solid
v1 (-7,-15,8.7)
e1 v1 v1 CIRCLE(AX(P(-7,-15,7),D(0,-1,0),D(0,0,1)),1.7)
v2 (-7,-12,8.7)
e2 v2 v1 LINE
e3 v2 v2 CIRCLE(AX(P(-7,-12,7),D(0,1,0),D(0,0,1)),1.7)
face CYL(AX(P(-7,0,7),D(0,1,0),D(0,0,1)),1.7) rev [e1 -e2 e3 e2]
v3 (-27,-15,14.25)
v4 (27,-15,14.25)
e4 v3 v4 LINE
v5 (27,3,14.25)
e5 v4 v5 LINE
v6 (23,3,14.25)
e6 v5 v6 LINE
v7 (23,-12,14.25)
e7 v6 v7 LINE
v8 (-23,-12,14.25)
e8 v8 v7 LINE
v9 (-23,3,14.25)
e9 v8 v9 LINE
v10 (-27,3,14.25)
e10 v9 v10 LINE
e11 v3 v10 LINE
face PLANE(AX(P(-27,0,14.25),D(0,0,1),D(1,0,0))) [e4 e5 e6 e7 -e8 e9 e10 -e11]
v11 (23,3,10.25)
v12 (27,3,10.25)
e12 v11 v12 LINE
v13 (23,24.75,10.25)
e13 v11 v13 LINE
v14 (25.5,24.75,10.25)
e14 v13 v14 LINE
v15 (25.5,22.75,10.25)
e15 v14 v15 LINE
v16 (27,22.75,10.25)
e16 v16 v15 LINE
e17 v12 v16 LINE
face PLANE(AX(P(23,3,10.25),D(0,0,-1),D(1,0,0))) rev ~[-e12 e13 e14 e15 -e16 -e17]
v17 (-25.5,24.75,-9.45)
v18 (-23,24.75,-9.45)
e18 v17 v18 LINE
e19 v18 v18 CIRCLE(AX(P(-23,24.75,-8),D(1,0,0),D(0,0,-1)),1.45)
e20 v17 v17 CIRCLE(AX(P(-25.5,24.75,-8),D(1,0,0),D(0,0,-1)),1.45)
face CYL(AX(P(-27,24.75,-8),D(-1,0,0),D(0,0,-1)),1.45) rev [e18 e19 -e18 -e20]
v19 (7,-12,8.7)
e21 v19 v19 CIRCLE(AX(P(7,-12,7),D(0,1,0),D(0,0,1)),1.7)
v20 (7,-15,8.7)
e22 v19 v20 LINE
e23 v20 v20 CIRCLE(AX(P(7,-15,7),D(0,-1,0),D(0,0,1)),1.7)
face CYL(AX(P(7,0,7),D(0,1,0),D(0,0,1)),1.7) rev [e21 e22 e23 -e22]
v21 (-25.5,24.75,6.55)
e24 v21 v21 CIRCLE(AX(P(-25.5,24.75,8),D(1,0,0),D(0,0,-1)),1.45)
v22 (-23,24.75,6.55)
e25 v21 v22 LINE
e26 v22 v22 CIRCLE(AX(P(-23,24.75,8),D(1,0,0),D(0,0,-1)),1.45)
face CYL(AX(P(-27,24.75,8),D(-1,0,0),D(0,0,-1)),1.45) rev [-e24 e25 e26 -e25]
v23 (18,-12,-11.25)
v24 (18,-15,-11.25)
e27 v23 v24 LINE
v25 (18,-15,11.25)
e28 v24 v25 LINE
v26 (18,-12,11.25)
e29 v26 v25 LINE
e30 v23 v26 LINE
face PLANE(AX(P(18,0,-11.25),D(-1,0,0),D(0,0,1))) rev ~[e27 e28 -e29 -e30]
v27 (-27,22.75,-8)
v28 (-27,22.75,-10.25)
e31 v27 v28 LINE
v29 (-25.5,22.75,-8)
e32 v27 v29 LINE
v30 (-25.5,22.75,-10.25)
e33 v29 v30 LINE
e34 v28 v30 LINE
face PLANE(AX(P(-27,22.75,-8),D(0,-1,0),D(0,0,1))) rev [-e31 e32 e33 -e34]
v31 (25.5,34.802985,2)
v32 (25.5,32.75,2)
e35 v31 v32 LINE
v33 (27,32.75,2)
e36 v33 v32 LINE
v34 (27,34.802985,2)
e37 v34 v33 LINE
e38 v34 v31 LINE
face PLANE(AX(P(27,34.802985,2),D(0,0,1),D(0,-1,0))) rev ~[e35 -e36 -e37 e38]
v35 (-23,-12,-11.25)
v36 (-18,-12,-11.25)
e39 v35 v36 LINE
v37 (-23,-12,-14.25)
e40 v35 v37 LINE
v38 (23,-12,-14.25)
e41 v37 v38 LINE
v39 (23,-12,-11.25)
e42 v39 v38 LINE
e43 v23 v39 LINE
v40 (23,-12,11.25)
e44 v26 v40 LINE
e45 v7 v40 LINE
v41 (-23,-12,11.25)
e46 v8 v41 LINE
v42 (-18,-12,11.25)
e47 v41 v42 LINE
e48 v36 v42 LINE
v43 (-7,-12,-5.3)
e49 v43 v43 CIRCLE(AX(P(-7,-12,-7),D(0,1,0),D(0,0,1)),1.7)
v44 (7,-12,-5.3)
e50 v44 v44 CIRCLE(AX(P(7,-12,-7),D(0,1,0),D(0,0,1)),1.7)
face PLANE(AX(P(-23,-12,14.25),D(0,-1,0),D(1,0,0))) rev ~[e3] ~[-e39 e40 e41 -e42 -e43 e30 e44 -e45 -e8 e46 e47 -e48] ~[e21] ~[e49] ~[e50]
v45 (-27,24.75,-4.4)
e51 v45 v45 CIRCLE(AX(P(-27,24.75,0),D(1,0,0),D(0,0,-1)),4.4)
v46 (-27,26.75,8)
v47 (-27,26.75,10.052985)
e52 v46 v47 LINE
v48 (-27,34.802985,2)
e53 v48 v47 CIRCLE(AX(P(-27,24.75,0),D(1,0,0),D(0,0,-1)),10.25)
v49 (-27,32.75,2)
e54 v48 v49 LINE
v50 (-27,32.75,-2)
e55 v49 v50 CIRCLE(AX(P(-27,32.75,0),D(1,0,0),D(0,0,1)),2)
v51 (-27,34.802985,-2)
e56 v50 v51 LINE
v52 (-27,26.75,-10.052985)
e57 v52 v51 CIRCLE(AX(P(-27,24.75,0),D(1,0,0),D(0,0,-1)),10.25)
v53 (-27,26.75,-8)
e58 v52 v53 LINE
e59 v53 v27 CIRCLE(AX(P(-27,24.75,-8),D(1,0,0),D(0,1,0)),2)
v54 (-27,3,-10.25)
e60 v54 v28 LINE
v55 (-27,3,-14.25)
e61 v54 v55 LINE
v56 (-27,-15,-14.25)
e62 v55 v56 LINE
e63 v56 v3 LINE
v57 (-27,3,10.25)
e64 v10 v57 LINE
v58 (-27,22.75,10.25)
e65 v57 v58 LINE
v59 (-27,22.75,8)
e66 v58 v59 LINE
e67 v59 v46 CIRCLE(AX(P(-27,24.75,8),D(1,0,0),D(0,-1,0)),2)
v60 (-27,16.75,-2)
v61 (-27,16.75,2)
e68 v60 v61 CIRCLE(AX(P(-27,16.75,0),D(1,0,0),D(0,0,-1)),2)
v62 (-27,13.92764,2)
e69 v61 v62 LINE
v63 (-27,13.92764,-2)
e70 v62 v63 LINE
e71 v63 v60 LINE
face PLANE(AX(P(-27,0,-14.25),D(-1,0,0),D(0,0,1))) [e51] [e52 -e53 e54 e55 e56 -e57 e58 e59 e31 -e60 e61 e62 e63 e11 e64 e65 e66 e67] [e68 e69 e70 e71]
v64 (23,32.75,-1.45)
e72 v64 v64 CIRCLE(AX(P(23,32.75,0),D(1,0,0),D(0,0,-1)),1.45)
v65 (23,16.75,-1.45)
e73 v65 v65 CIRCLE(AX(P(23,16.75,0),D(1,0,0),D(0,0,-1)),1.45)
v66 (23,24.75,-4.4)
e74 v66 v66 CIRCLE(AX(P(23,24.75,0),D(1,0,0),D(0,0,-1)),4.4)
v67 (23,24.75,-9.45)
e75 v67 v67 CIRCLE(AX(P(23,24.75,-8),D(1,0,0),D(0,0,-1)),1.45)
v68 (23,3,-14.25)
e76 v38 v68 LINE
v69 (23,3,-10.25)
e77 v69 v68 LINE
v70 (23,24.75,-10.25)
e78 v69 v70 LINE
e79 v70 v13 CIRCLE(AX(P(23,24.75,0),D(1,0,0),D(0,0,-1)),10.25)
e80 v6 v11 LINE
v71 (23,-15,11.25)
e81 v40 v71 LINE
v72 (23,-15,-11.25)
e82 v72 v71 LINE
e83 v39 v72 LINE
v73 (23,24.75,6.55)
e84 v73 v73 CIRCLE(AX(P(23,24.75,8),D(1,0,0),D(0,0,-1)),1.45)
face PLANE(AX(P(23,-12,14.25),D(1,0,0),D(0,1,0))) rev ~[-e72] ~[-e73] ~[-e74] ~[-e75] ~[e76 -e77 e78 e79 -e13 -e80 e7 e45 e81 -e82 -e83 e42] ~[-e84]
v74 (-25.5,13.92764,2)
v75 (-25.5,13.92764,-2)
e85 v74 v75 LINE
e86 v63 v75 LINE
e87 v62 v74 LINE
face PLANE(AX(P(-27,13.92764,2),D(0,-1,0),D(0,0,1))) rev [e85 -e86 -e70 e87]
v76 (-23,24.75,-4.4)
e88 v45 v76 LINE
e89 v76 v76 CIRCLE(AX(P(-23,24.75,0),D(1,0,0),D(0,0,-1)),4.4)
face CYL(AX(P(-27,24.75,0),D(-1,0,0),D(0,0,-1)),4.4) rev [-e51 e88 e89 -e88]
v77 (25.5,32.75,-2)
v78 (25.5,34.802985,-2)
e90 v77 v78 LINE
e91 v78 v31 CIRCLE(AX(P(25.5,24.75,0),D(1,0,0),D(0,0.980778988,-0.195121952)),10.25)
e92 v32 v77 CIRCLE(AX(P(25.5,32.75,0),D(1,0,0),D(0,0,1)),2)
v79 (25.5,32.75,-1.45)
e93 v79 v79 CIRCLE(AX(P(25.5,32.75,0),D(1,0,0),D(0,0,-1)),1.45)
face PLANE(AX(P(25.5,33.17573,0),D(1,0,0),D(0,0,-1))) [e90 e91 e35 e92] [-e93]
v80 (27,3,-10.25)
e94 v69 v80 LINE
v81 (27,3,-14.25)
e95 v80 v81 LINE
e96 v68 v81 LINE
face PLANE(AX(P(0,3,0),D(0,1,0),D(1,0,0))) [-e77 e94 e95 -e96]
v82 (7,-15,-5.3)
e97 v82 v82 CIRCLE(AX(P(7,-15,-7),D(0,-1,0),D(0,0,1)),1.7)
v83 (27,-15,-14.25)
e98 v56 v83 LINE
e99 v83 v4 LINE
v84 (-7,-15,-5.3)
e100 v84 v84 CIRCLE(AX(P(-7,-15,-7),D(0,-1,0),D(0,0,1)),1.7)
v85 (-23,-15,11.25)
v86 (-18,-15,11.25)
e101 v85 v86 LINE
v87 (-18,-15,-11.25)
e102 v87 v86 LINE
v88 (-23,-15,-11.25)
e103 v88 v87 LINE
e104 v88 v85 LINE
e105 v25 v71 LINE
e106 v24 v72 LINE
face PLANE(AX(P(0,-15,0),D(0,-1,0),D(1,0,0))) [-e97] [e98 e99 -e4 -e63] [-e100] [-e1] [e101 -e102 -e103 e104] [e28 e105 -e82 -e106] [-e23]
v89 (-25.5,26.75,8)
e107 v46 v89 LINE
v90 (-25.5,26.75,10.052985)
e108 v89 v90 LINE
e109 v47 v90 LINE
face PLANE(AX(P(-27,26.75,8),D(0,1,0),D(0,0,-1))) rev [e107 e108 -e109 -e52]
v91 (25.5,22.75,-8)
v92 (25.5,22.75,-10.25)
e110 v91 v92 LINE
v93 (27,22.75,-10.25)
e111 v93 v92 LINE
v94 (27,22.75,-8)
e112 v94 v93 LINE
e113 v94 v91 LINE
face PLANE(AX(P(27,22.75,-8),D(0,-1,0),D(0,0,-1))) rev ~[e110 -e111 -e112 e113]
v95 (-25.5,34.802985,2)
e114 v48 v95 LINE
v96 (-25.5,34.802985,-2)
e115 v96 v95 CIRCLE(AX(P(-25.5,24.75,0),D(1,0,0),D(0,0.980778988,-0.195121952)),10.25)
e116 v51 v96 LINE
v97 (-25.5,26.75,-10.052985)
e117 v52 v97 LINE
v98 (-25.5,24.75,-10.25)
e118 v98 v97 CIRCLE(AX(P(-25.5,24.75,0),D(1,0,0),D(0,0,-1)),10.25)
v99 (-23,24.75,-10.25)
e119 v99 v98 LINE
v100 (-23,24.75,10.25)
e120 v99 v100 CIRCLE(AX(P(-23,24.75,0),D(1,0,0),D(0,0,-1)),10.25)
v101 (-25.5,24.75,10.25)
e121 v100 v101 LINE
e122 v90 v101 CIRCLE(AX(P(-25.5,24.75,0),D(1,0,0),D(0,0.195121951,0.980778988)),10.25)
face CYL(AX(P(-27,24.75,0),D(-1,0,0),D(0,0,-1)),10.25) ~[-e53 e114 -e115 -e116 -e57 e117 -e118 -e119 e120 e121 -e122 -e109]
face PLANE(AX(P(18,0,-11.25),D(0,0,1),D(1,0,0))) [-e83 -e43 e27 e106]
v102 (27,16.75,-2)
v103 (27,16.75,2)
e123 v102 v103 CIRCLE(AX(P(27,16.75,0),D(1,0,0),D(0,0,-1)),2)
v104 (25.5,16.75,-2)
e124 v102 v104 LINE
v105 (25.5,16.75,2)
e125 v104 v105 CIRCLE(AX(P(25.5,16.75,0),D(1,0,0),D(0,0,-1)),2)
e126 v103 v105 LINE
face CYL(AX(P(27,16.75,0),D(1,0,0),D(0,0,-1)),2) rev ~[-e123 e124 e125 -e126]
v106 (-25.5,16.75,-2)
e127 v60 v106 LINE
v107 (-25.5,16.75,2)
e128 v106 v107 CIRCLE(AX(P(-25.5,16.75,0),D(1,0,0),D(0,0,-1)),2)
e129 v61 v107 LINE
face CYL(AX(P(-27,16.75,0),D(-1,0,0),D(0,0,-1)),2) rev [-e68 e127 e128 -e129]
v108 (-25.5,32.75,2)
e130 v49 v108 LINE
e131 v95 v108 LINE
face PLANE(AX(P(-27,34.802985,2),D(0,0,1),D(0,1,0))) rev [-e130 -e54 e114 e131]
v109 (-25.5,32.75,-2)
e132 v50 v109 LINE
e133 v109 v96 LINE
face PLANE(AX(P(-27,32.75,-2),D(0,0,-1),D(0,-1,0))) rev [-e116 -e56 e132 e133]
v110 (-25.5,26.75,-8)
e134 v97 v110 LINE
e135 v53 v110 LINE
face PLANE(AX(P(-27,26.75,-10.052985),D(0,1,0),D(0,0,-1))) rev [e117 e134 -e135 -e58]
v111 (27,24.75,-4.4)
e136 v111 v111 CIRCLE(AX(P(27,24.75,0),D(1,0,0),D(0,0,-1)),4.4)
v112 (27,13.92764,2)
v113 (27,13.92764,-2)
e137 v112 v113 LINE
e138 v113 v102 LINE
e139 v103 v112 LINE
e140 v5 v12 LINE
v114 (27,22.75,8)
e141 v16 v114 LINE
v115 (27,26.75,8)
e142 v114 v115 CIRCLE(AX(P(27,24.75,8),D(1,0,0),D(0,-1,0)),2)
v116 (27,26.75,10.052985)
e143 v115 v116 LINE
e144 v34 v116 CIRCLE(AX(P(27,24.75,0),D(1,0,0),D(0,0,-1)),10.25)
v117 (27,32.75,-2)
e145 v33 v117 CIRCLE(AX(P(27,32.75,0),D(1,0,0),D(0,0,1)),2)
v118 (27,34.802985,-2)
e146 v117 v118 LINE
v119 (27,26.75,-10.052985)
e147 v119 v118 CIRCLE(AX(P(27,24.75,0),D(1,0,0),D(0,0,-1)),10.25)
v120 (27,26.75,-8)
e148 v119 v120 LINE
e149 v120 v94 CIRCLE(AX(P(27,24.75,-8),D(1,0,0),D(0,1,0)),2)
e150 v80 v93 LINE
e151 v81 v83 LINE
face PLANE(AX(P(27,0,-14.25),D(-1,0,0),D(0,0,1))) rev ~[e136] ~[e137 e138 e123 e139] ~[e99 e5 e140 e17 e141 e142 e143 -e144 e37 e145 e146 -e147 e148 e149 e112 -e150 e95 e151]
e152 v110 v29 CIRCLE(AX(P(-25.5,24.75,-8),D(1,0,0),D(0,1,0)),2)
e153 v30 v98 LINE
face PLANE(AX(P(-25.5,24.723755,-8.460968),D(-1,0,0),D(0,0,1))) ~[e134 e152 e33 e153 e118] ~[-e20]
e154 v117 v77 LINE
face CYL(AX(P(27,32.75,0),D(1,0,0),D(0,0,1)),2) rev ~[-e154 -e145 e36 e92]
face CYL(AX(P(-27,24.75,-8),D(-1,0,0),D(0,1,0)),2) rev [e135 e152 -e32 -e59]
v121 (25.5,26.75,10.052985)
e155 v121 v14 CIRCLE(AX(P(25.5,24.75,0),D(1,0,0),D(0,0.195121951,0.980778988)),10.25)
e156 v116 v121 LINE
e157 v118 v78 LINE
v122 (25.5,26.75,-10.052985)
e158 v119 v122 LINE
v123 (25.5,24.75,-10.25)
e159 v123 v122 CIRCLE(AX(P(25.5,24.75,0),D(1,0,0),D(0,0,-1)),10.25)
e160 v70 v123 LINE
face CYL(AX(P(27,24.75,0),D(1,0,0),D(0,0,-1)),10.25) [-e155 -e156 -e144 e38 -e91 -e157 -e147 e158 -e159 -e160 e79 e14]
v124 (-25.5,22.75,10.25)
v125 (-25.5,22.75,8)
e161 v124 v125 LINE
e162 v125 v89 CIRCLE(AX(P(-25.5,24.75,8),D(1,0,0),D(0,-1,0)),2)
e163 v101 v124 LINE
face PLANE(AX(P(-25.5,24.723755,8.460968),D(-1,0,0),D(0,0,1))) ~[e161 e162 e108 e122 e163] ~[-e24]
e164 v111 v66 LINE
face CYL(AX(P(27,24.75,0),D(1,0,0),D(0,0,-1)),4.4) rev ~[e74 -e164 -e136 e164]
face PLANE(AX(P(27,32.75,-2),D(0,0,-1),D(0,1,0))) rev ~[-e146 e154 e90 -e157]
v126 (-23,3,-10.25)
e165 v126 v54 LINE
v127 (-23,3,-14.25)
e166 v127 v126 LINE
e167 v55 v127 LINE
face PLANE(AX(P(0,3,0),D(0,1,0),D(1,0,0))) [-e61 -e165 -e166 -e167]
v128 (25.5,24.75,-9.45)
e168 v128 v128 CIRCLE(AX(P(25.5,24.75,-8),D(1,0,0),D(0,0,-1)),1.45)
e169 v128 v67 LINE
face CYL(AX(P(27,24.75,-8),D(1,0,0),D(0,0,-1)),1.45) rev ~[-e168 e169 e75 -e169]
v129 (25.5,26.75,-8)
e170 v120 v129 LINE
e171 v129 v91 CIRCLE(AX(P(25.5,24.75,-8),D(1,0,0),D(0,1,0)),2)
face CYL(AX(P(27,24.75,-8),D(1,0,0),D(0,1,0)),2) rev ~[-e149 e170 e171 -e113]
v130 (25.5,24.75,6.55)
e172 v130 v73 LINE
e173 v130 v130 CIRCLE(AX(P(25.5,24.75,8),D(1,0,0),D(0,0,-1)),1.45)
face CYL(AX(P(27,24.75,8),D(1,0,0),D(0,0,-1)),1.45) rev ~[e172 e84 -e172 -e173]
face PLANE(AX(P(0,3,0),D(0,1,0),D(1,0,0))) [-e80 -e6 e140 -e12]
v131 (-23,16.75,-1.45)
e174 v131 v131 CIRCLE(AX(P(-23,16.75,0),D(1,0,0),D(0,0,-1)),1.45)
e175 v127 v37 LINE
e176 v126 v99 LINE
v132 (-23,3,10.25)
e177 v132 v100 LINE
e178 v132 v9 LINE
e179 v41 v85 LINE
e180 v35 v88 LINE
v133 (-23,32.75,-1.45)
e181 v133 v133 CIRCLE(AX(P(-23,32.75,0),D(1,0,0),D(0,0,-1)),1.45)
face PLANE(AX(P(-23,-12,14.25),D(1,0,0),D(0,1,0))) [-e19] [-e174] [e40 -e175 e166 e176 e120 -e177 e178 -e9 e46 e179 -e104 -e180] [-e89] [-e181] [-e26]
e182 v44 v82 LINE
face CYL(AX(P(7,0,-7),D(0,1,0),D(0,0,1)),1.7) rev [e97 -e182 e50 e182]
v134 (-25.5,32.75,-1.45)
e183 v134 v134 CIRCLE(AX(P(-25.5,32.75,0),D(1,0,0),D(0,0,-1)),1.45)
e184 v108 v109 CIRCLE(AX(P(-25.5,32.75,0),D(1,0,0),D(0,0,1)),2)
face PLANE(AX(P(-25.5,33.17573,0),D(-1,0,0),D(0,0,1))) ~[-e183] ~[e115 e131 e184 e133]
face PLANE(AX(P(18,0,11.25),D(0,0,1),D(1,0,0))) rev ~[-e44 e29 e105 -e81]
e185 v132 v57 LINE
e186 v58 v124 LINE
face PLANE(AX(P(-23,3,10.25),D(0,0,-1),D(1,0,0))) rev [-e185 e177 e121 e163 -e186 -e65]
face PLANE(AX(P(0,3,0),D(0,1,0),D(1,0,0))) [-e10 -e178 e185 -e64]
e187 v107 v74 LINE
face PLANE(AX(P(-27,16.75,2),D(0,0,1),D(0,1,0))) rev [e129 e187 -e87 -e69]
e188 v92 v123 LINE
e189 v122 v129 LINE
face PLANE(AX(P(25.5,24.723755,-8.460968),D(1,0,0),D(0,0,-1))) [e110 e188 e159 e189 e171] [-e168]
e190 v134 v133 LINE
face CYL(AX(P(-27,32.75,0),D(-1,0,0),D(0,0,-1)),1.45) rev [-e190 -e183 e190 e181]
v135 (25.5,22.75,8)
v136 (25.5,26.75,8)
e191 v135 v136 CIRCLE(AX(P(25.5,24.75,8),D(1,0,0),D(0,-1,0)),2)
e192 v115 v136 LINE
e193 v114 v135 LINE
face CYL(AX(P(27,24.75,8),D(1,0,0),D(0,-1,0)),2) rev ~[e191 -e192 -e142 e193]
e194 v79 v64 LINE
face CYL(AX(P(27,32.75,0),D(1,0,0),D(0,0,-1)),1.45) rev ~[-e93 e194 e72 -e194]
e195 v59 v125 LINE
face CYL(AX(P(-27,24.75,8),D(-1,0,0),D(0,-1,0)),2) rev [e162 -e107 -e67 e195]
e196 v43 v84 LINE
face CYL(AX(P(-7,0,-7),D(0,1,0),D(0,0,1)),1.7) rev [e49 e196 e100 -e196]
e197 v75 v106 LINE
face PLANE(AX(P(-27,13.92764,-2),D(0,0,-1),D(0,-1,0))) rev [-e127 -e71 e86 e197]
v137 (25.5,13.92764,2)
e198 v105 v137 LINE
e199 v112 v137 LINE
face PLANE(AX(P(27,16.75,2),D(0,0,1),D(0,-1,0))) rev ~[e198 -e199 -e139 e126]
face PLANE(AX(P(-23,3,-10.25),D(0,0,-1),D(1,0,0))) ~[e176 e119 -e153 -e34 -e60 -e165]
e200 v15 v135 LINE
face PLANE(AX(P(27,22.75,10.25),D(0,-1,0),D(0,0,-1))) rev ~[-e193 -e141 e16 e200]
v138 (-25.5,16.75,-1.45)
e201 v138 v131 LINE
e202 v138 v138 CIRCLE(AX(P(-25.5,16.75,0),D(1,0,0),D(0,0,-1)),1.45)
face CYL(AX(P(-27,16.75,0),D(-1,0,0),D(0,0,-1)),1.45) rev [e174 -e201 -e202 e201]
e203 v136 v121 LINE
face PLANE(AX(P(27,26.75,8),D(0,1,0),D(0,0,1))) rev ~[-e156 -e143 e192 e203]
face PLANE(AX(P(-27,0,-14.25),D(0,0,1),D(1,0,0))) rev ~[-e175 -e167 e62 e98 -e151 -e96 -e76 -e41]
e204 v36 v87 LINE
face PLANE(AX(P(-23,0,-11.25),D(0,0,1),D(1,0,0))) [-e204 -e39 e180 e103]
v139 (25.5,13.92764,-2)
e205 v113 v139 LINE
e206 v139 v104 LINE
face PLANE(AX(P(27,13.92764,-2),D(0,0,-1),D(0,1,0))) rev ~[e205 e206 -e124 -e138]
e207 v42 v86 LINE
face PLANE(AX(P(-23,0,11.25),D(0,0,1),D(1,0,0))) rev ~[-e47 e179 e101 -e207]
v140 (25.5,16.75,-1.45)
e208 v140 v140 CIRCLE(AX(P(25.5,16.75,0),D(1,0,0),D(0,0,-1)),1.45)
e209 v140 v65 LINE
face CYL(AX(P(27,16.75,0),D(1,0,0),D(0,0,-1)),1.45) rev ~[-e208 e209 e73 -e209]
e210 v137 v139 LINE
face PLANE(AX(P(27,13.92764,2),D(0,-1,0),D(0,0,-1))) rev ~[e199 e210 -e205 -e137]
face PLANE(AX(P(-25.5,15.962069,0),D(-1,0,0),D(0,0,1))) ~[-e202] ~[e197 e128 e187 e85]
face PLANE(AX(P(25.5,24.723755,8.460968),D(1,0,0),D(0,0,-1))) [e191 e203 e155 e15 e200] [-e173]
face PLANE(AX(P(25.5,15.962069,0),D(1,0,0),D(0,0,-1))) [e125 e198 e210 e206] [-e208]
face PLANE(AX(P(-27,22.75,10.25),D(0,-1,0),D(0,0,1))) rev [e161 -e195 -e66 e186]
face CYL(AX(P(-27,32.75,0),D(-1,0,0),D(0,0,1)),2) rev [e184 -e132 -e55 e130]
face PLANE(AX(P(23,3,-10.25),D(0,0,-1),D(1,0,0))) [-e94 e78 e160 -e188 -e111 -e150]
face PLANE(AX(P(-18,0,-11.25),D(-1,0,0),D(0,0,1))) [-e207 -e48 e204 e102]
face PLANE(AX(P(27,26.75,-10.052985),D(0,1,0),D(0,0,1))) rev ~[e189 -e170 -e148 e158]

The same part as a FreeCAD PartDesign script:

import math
import FreeCAD as App
import Part
import Sketcher

V = App.Vector
Q = App.Units.Quantity

doc = App.newDocument("Part")
body = doc.addObject("PartDesign::Body", "Body")

sketch1 = body.newObject("Sketcher::SketchObject", "Sketch")
sketch1.AttachmentSupport = (doc.getObject("XZ_Plane"), [""])
sketch1.MapMode = "FlatFace"
sketch1.addGeometry([
    Part.LineSegment(V(-27, -14.2, 0), V(-27, 14.2, 0)),
    Part.LineSegment(V(-27, 14.2, 0), V(27, 14.2, 0)),
    Part.LineSegment(V(27, 14.2, 0), V(27, -14.2, 0)),
    Part.LineSegment(V(27, -14.2, 0), V(-27, -14.2, 0)),
    Part.Circle(V(-9, 8.2, 0), V(0, 0, 1), 1.7),
    Part.Circle(V(9, 8.2, 0), V(0, 0, 1), 1.7),
    Part.LineSegment(V(-18, 11.2, 0), V(-23, 11.2, 0)),
    Part.LineSegment(V(-23, 11.2, 0), V(-23, -11.2, 0)),
    Part.LineSegment(V(-23, -11.2, 0), V(-18, -11.2, 0)),
    Part.LineSegment(V(-18, -11.2, 0), V(-18, 11.2, 0)),
    Part.Circle(V(-9, -8.2, 0), V(0, 0, 1), 1.7),
    Part.Circle(V(0, 0, 0), V(0, 0, 1), 7.5),
    Part.LineSegment(V(23, 11.2, 0), V(18, 11.2, 0)),
    Part.LineSegment(V(18, 11.2, 0), V(18, -11.2, 0)),
    Part.LineSegment(V(18, -11.2, 0), V(23, -11.2, 0)),
    Part.LineSegment(V(23, -11.2, 0), V(23, 11.2, 0)),
    Part.Circle(V(9, -8.2, 0), V(0, 0, 1), 1.7),
], False)
sketch1.addConstraint([
    Sketcher.Constraint("Coincident", 0, 2, 1, 1),
    Sketcher.Constraint("Coincident", 1, 2, 2, 1),
    Sketcher.Constraint("Coincident", 2, 2, 3, 1),
    Sketcher.Constraint("Coincident", 3, 2, 0, 1),
    Sketcher.Constraint("Coincident", 6, 2, 7, 1),
    Sketcher.Constraint("Coincident", 7, 2, 8, 1),
    Sketcher.Constraint("Coincident", 8, 2, 9, 1),
    Sketcher.Constraint("Coincident", 9, 2, 6, 1),
    Sketcher.Constraint("Coincident", 12, 2, 13, 1),
    Sketcher.Constraint("Coincident", 13, 2, 14, 1),
    Sketcher.Constraint("Coincident", 14, 2, 15, 1),
    Sketcher.Constraint("Coincident", 15, 2, 12, 1),
    Sketcher.Constraint("Vertical", 0),
    Sketcher.Constraint("Horizontal", 1),
    Sketcher.Constraint("Vertical", 2),
    Sketcher.Constraint("Horizontal", 3),
    Sketcher.Constraint("Horizontal", 6),
    Sketcher.Constraint("Vertical", 7),
    Sketcher.Constraint("Horizontal", 8),
    Sketcher.Constraint("Vertical", 9),
    Sketcher.Constraint("Horizontal", 12),
    Sketcher.Constraint("Vertical", 13),
    Sketcher.Constraint("Horizontal", 14),
    Sketcher.Constraint("Vertical", 15),
    Sketcher.Constraint("Coincident", 11, 3, -1, 1),
    Sketcher.Constraint("Equal", 4, 5),
    Sketcher.Constraint("Equal", 5, 10),
    Sketcher.Constraint("Equal", 10, 16),
    Sketcher.Constraint("Symmetric", 5, 3, 10, 3, -1, 1),
    Sketcher.Constraint("Symmetric", 4, 3, 16, 3, -1, 1),
    Sketcher.Constraint("Symmetric", 0, 2, 2, 2, -1, 1),
    Sketcher.Constraint("Symmetric", 8, 2, 12, 2, -1, 1),
    Sketcher.Constraint("Symmetric", 6, 2, 14, 2, -1, 1),
    Sketcher.Constraint("Symmetric", 4, 3, 5, 3, -2),
    Sketcher.Constraint("Horizontal", 9, 2, 12, 2),
    Sketcher.Constraint("Diameter", 11, Q("15 mm")),
    Sketcher.Constraint("Diameter", 4, Q("3.4 mm")),
    Sketcher.Constraint("DistanceX", 1, 1, 1, 2, Q("54 mm")),
    Sketcher.Constraint("DistanceX", 6, 2, 6, 1, Q("5 mm")),
    Sketcher.Constraint("DistanceY", 0, 1, 0, 2, Q("28.5 mm")),
    Sketcher.Constraint("DistanceY", 7, 2, 7, 1, Q("22.5 mm")),
    Sketcher.Constraint("DistanceX", 4, 3, -1, 1, Q("9 mm")),
    Sketcher.Constraint("DistanceX", 6, 2, -1, 1, Q("23 mm")),
    Sketcher.Constraint("DistanceY", 4, 3, 0, 2, Q("6 mm")),
])
pad1 = body.newObject("PartDesign::Pad", "Pad")
pad1.Profile = sketch1
pad1.Length = 3
pad1.Reversed = True

sketch2 = body.newObject("Sketcher::SketchObject", "Sketch001")
sketch2.AttachmentSupport = (doc.getObject("XZ_Plane"), [""])
sketch2.MapMode = "FlatFace"
sketch2.AttachmentOffset = App.Placement(V(0, 0, -3), App.Rotation())
sketch2.addGeometry([
    Part.LineSegment(V(23, -10.2, 0), V(23, 10.2, 0)),
    Part.LineSegment(V(23, 10.2, 0), V(27, 10.2, 0)),
    Part.LineSegment(V(27, 10.2, 0), V(27, -10.2, 0)),
    Part.LineSegment(V(27, -10.2, 0), V(23, -10.2, 0)),
], False)
sketch2.addConstraint([
    Sketcher.Constraint("Coincident", 0, 2, 1, 1),
    Sketcher.Constraint("Coincident", 1, 2, 2, 1),
    Sketcher.Constraint("Coincident", 2, 2, 3, 1),
    Sketcher.Constraint("Coincident", 3, 2, 0, 1),
    Sketcher.Constraint("Vertical", 0),
    Sketcher.Constraint("Horizontal", 1),
    Sketcher.Constraint("Vertical", 2),
    Sketcher.Constraint("Horizontal", 3),
    Sketcher.Constraint("DistanceX", 1, 1, 1, 2, Q("4 mm")),
    Sketcher.Constraint("DistanceY", 0, 1, 0, 2, Q("20.5 mm")),
    Sketcher.Constraint("DistanceX", -1, 1, 0, 2, Q("23 mm")),
    Sketcher.Constraint("DistanceY", -1, 1, 0, 2, Q("10.25 mm")),
])
pad2 = body.newObject("PartDesign::Pad", "Pad001")
pad2.Profile = sketch2
pad2.Length = 21.75
pad2.Reversed = True

sketch3 = body.newObject("Sketcher::SketchObject", "Sketch002")
sketch3.AttachmentSupport = (doc.getObject("YZ_Plane"), [""])
sketch3.MapMode = "FlatFace"
sketch3.AttachmentOffset = App.Placement(V(0, 0, 27), App.Rotation())
sketch3.addGeometry(Part.Circle(V(25, 0, 0), V(0, 0, 1), 10), False)
sketch3.addConstraint([
    Sketcher.Constraint("PointOnObject", 0, 3, -1),
    Sketcher.Constraint("Diameter", 0, Q("20.5 mm")),
    Sketcher.Constraint("DistanceX", -1, 1, 0, 3, Q("24.75 mm")),
])
pad3 = body.newObject("PartDesign::Pad", "Pad002")
pad3.Profile = sketch3
pad3.Length = 4
pad3.Reversed = True
doc.recompute()

mirrored = body.newObject("PartDesign::Mirrored", "Mirrored")
mirrored.Originals = [pad2, pad3]
mirrored.MirrorPlane = (doc.getObject("YZ_Plane"), [""])
body.Tip = mirrored

sketch4 = body.newObject("Sketcher::SketchObject", "Sketch003")
sketch4.AttachmentSupport = (doc.getObject("YZ_Plane"), [""])
sketch4.MapMode = "FlatFace"
sketch4.AttachmentOffset = App.Placement(V(0, 0, 27), App.Rotation())
sketch4.addGeometry([
    Part.Circle(V(24.8, 0, 0), V(0, 0, 1), 4.4),
    Part.Circle(V(32.8, 0, 0), V(0, 0, 1), 1.4),
    Part.Circle(V(24.8, -8, 0), V(0, 0, 1), 1.4),
    Part.Circle(V(16.8, 0, 0), V(0, 0, 1), 1.4),
    Part.Circle(V(24.8, 8, 0), V(0, 0, 1), 1.4),
], False)
sketch4.addConstraint([
    Sketcher.Constraint("Equal", 1, 2),
    Sketcher.Constraint("Equal", 2, 3),
    Sketcher.Constraint("Equal", 3, 4),
    Sketcher.Constraint("Symmetric", 2, 3, 4, 3, -1),
    Sketcher.Constraint("PointOnObject", 0, 3, -1),
    Sketcher.Constraint("PointOnObject", 1, 3, -1),
    Sketcher.Constraint("PointOnObject", 3, 3, -1),
    Sketcher.Constraint("Vertical", 0, 3, 2, 3),
    Sketcher.Constraint("Diameter", 0, Q("8.8 mm")),
    Sketcher.Constraint("Diameter", 1, Q("2.9 mm")),
    Sketcher.Constraint("DistanceY", 2, 3, -1, 1, Q("8 mm")),
    Sketcher.Constraint("DistanceX", 0, 3, 1, 3, Q("8 mm")),
    Sketcher.Constraint("DistanceX", 3, 3, 0, 3, Q("8 mm")),
    Sketcher.Constraint("DistanceX", -1, 1, 0, 3, Q("24.75 mm")),
])
pocket1 = body.newObject("PartDesign::Pocket", "Pocket")
pocket1.Profile = sketch4
pocket1.Length = 4
doc.recompute()

mirrored2 = body.newObject("PartDesign::Mirrored", "Mirrored001")
mirrored2.Originals = [pocket1]
mirrored2.MirrorPlane = (doc.getObject("YZ_Plane"), [""])
body.Tip = mirrored2

sketch5 = body.newObject("Sketcher::SketchObject", "Sketch004")
sketch5.AttachmentSupport = (doc.getObject("YZ_Plane"), [""])
sketch5.MapMode = "FlatFace"
sketch5.AttachmentOffset = App.Placement(V(0, 0, 27), App.Rotation())
sketch5.addGeometry([
    Part.ArcOfCircle(Part.Circle(V(24.7, 0, 0), V(0, 0, 1), 10.3), math.radians(-90), math.radians(-78.75)),
    Part.LineSegment(V(26.8, -10.1, 0), V(26.8, -8, 0)),
    Part.ArcOfCircle(Part.Circle(V(24.8, -8, 0), V(0, 0, 1), 2), math.radians(0), math.radians(180)),
    Part.LineSegment(V(22.8, -8, 0), V(22.8, -10.2, 0)),
    Part.LineSegment(V(22.8, -10.2, 0), V(24.8, -10.2, 0)),
    Part.Circle(V(24.8, -8, 0), V(0, 0, 1), 1.4),
    Part.LineSegment(V(32.8, -2, 0), V(34.8, -2, 0)),
    Part.ArcOfCircle(Part.Circle(V(24.8, 0, 0), V(0, 0, 1), 10.2), math.radians(-11), math.radians(11)),
    Part.LineSegment(V(34.8, 2, 0), V(32.8, 2, 0)),
    Part.ArcOfCircle(Part.Circle(V(32.8, 0, 0), V(0, 0, 1), 2), math.radians(90), math.radians(270)),
    Part.Circle(V(32.8, 0, 0), V(0, 0, 1), 1.4),
    Part.LineSegment(V(26.8, 8, 0), V(26.8, 10.1, 0)),
    Part.ArcOfCircle(Part.Circle(V(24.7, 0, 0), V(0, 0, 1), 10.3), math.radians(78.75), math.radians(90)),
    Part.LineSegment(V(24.8, 10.2, 0), V(22.8, 10.2, 0)),
    Part.LineSegment(V(22.8, 10.2, 0), V(22.8, 8, 0)),
    Part.ArcOfCircle(Part.Circle(V(24.8, 8, 0), V(0, 0, 1), 2), math.radians(180), math.radians(360)),
    Part.Circle(V(24.8, 8, 0), V(0, 0, 1), 1.4),
    Part.LineSegment(V(16.8, 2, 0), V(13.9, 2, 0)),
    Part.LineSegment(V(13.9, 2, 0), V(13.9, -2, 0)),
    Part.LineSegment(V(13.9, -2, 0), V(16.8, -2, 0)),
    Part.ArcOfCircle(Part.Circle(V(16.8, 0, 0), V(0, 0, 1), 2), math.radians(-90), math.radians(90)),
    Part.Circle(V(16.8, 0, 0), V(0, 0, 1), 1.4),
], False)
sketch5.addConstraint([
    Sketcher.Constraint("Coincident", 0, 2, 1, 1),
    Sketcher.Constraint("Tangent", 1, 2, 2, 1),
    Sketcher.Constraint("Tangent", 2, 2, 3, 1),
    Sketcher.Constraint("Coincident", 3, 2, 4, 1),
    Sketcher.Constraint("Tangent", 4, 2, 0, 1),
    Sketcher.Constraint("Coincident", 6, 2, 7, 1),
    Sketcher.Constraint("Coincident", 7, 2, 8, 1),
    Sketcher.Constraint("Tangent", 8, 2, 9, 1),
    Sketcher.Constraint("Tangent", 9, 2, 6, 1),
    Sketcher.Constraint("Coincident", 11, 2, 12, 1),
    Sketcher.Constraint("Tangent", 12, 2, 13, 1),
    Sketcher.Constraint("Coincident", 13, 2, 14, 1),
    Sketcher.Constraint("Tangent", 14, 2, 15, 1),
    Sketcher.Constraint("Tangent", 15, 2, 11, 1),
    Sketcher.Constraint("Coincident", 17, 2, 18, 1),
    Sketcher.Constraint("Coincident", 18, 2, 19, 1),
    Sketcher.Constraint("Tangent", 19, 2, 20, 1),
    Sketcher.Constraint("Tangent", 20, 2, 17, 1),
    Sketcher.Constraint("Vertical", 1),
    Sketcher.Constraint("Vertical", 3),
    Sketcher.Constraint("Horizontal", 4),
    Sketcher.Constraint("Horizontal", 6),
    Sketcher.Constraint("Horizontal", 8),
    Sketcher.Constraint("Vertical", 11),
    Sketcher.Constraint("Horizontal", 13),
    Sketcher.Constraint("Vertical", 14),
    Sketcher.Constraint("Horizontal", 17),
    Sketcher.Constraint("Vertical", 18),
    Sketcher.Constraint("Horizontal", 19),
    Sketcher.Constraint("Coincident", 5, 3, 2, 3),
    Sketcher.Constraint("Coincident", 7, 3, 0, 3),
    Sketcher.Constraint("Coincident", 10, 3, 9, 3),
    Sketcher.Constraint("Coincident", 12, 3, 0, 3),
    Sketcher.Constraint("Coincident", 16, 3, 15, 3),
    Sketcher.Constraint("Coincident", 21, 3, 20, 3),
    Sketcher.Constraint("Equal", 0, 7),
    Sketcher.Constraint("Equal", 2, 9),
    Sketcher.Constraint("Equal", 5, 10),
    Sketcher.Constraint("Equal", 7, 12),
    Sketcher.Constraint("Equal", 9, 15),
    Sketcher.Constraint("Equal", 10, 16),
    Sketcher.Constraint("Equal", 15, 20),
    Sketcher.Constraint("Equal", 16, 21),
    Sketcher.Constraint("Symmetric", 2, 3, 15, 3, -1),
    Sketcher.Constraint("Symmetric", 6, 2, 7, 2, -1),
    Sketcher.Constraint("PointOnObject", 20, 3, -1),
    Sketcher.Constraint("Vertical", 0, 3, 2, 3),
    Sketcher.Constraint("Equal", 8, 1),
    Sketcher.Constraint("Radius", 2, Q("2 mm")),
    Sketcher.Constraint("Diameter", 5, Q("2.9 mm")),
    Sketcher.Constraint("Radius", 0, Q("10.25 mm")),
    Sketcher.Constraint("DistanceY", 2, 3, -1, 1, Q("8 mm")),
    Sketcher.Constraint("DistanceX", 20, 3, 0, 3, Q("8 mm")),
    Sketcher.Constraint("DistanceX", -1, 1, 0, 3, Q("24.75 mm")),
    Sketcher.Constraint("DistanceX", 17, 2, 17, 1, Q("2.82236 mm")),
])
pocket2 = body.newObject("PartDesign::Pocket", "Pocket001")
pocket2.Profile = sketch5
pocket2.Length = 1.5
doc.recompute()

mirrored3 = body.newObject("PartDesign::Mirrored", "Mirrored002")
mirrored3.Originals = [pocket2]
mirrored3.MirrorPlane = (doc.getObject("YZ_Plane"), [""])
body.Tip = mirrored3

sketch6 = body.newObject("Sketcher::SketchObject", "Sketch005")
sketch6.AttachmentSupport = (doc.getObject("XZ_Plane"), [""])
sketch6.MapMode = "FlatFace"
sketch6.AttachmentOffset = App.Placement(V(0, 0, -3), App.Rotation())
sketch6.addGeometry([
    Part.LineSegment(V(-14, -14, 0), V(-14, 14, 0)),
    Part.LineSegment(V(-14, 14, 0), V(14, 14, 0)),
    Part.LineSegment(V(14, 14, 0), V(14, -14, 0)),
    Part.LineSegment(V(14, -14, 0), V(-14, -14, 0)),
], False)
sketch6.addConstraint([
    Sketcher.Constraint("Coincident", 0, 2, 1, 1),
    Sketcher.Constraint("Coincident", 1, 2, 2, 1),
    Sketcher.Constraint("Coincident", 2, 2, 3, 1),
    Sketcher.Constraint("Coincident", 3, 2, 0, 1),
    Sketcher.Constraint("Vertical", 0),
    Sketcher.Constraint("Horizontal", 1),
    Sketcher.Constraint("Vertical", 2),
    Sketcher.Constraint("Horizontal", 3),
    Sketcher.Constraint("Symmetric", 0, 2, 2, 2, -1, 1),
    Sketcher.Constraint("DistanceY", 0, 1, 0, 2, Q("28.5 mm")),
    Sketcher.Constraint("DistanceX", 1, 1, 1, 2, Q("28.781481 mm")),
])
pad4 = body.newObject("PartDesign::Pad", "Pad003")
pad4.Profile = sketch6
pad4.Length = 3

sketch7 = body.newObject("Sketcher::SketchObject", "Sketch006")
sketch7.AttachmentSupport = (doc.getObject("XZ_Plane"), [""])
sketch7.MapMode = "FlatFace"
sketch7.AttachmentOffset = App.Placement(V(0, 0, -3), App.Rotation())
sketch7.addGeometry([
    Part.ArcOfCircle(Part.Circle(V(-7, 7, 0), V(0, 0, 1), 1.7), math.radians(-90), math.radians(0)),
    Part.ArcOfCircle(Part.Circle(V(-7, 7, 0), V(0, 0, 1), 1.7), math.radians(0), math.radians(270)),
    Part.ArcOfCircle(Part.Circle(V(7, 7, 0), V(0, 0, 1), 1.7), math.radians(-90), math.radians(0)),
    Part.ArcOfCircle(Part.Circle(V(7, 7, 0), V(0, 0, 1), 1.7), math.radians(180), math.radians(270)),
    Part.ArcOfCircle(Part.Circle(V(7, 7, 0), V(0, 0, 1), 1.7), math.radians(0), math.radians(180)),
    Part.ArcOfCircle(Part.Circle(V(7, -7, 0), V(0, 0, 1), 1.7), math.radians(180), math.radians(360)),
    Part.ArcOfCircle(Part.Circle(V(7, -7, 0), V(0, 0, 1), 1.7), math.radians(90), math.radians(180)),
    Part.ArcOfCircle(Part.Circle(V(7, -7, 0), V(0, 0, 1), 1.7), math.radians(0), math.radians(90)),
    Part.Circle(V(-7, -7, 0), V(0, 0, 1), 1.7),
], False)
sketch7.addConstraint([
    Sketcher.Constraint("Tangent", 0, 1, 1, 2),
    Sketcher.Constraint("Coincident", 1, 1, 0, 2),
    Sketcher.Constraint("Tangent", 2, 1, 3, 2),
    Sketcher.Constraint("Tangent", 3, 1, 4, 2),
    Sketcher.Constraint("Tangent", 4, 1, 2, 2),
    Sketcher.Constraint("Tangent", 5, 1, 6, 2),
    Sketcher.Constraint("Tangent", 6, 1, 7, 2),
    Sketcher.Constraint("Tangent", 7, 1, 5, 2),
    Sketcher.Constraint("Equal", 1, 2),
    Sketcher.Constraint("Equal", 4, 5),
    Sketcher.Constraint("Equal", 7, 8),
    Sketcher.Constraint("Symmetric", 0, 3, 5, 3, -1, 1),
    Sketcher.Constraint("Symmetric", 2, 3, 8, 3, -1, 1),
    Sketcher.Constraint("Symmetric", 0, 3, 2, 3, -2),
    Sketcher.Constraint("Horizontal", 4, 3, 1, 1),
    Sketcher.Constraint("Horizontal", 1, 1, 3, 1),
    Sketcher.Constraint("Horizontal", 3, 1, 4, 1),
    Sketcher.Constraint("Horizontal", 8, 3, 5, 1),
    Sketcher.Constraint("Horizontal", 5, 1, 7, 1),
    Sketcher.Constraint("Vertical", 8, 3, 0, 1),
    Sketcher.Constraint("Vertical", 7, 3, 2, 1),
    Sketcher.Constraint("Vertical", 2, 1, 6, 1),
    Sketcher.Constraint("Diameter", 8, Q("3.4 mm")),
    Sketcher.Constraint("DistanceX", 0, 3, -1, 1, Q("7 mm")),
    Sketcher.Constraint("DistanceY", -1, 1, 0, 3, Q("7 mm")),
])
pocket3 = body.newObject("PartDesign::Pocket", "Pocket002")
pocket3.Profile = sketch7
pocket3.Length = 3
pocket3.Reversed = True

sketch8 = body.newObject("Sketcher::SketchObject", "Sketch007")
sketch8.AttachmentSupport = (doc.getObject("XZ_Plane"), [""])
sketch8.MapMode = "FlatFace"
sketch8.addGeometry([
    Part.LineSegment(V(-27, 14.2, 0), V(-27, -14.2, 0)),
    Part.LineSegment(V(-27, -14.2, 0), V(27, -14.2, 0)),
    Part.LineSegment(V(27, -14.2, 0), V(27, 14.2, 0)),
    Part.LineSegment(V(27, 14.2, 0), V(-27, 14.2, 0)),
    Part.Circle(V(-7, -7, 0), V(0, 0, 1), 1.7),
    Part.Circle(V(7, -7, 0), V(0, 0, 1), 1.7),
    Part.LineSegment(V(-18, -11.2, 0), V(-23, -11.2, 0)),
    Part.LineSegment(V(-23, -11.2, 0), V(-23, 11.2, 0)),
    Part.LineSegment(V(-23, 11.2, 0), V(-18, 11.2, 0)),
    Part.LineSegment(V(-18, 11.2, 0), V(-18, -11.2, 0)),
    Part.Circle(V(-7, 7, 0), V(0, 0, 1), 1.7),
    Part.LineSegment(V(23, -11.2, 0), V(18, -11.2, 0)),
    Part.LineSegment(V(18, -11.2, 0), V(18, 11.2, 0)),
    Part.LineSegment(V(18, 11.2, 0), V(23, 11.2, 0)),
    Part.LineSegment(V(23, 11.2, 0), V(23, -11.2, 0)),
    Part.Circle(V(7, 7, 0), V(0, 0, 1), 1.7),
], False)
sketch8.addConstraint([
    Sketcher.Constraint("Coincident", 0, 2, 1, 1),
    Sketcher.Constraint("Coincident", 1, 2, 2, 1),
    Sketcher.Constraint("Coincident", 2, 2, 3, 1),
    Sketcher.Constraint("Coincident", 3, 2, 0, 1),
    Sketcher.Constraint("Coincident", 6, 2, 7, 1),
    Sketcher.Constraint("Coincident", 7, 2, 8, 1),
    Sketcher.Constraint("Coincident", 8, 2, 9, 1),
    Sketcher.Constraint("Coincident", 9, 2, 6, 1),
    Sketcher.Constraint("Coincident", 11, 2, 12, 1),
    Sketcher.Constraint("Coincident", 12, 2, 13, 1),
    Sketcher.Constraint("Coincident", 13, 2, 14, 1),
    Sketcher.Constraint("Coincident", 14, 2, 11, 1),
    Sketcher.Constraint("Vertical", 0),
    Sketcher.Constraint("Horizontal", 1),
    Sketcher.Constraint("Vertical", 2),
    Sketcher.Constraint("Horizontal", 3),
    Sketcher.Constraint("Horizontal", 6),
    Sketcher.Constraint("Vertical", 7),
    Sketcher.Constraint("Horizontal", 8),
    Sketcher.Constraint("Vertical", 9),
    Sketcher.Constraint("Horizontal", 11),
    Sketcher.Constraint("Vertical", 12),
    Sketcher.Constraint("Horizontal", 13),
    Sketcher.Constraint("Vertical", 14),
    Sketcher.Constraint("Equal", 4, 5),
    Sketcher.Constraint("Equal", 5, 10),
    Sketcher.Constraint("Equal", 10, 15),
    Sketcher.Constraint("Symmetric", 5, 3, 10, 3, -1, 1),
    Sketcher.Constraint("Symmetric", 4, 3, 15, 3, -1, 1),
    Sketcher.Constraint("Symmetric", 0, 2, 2, 2, -1, 1),
    Sketcher.Constraint("Symmetric", 8, 2, 11, 2, -1, 1),
    Sketcher.Constraint("Symmetric", 6, 2, 13, 2, -1, 1),
    Sketcher.Constraint("Symmetric", 4, 3, 5, 3, -2),
    Sketcher.Constraint("Horizontal", 9, 2, 11, 2),
    Sketcher.Constraint("Diameter", 4, Q("3.4 mm")),
    Sketcher.Constraint("DistanceX", 1, 1, 1, 2, Q("54 mm")),
    Sketcher.Constraint("DistanceX", 6, 2, 6, 1, Q("5 mm")),
    Sketcher.Constraint("DistanceY", 0, 2, 0, 1, Q("28.5 mm")),
    Sketcher.Constraint("DistanceY", 7, 1, 7, 2, Q("22.5 mm")),
    Sketcher.Constraint("DistanceX", 4, 3, -1, 1, Q("7 mm")),
    Sketcher.Constraint("DistanceY", 4, 3, -1, 1, Q("7 mm")),
    Sketcher.Constraint("DistanceX", 6, 2, -1, 1, Q("23 mm")),
])
pad5 = body.newObject("PartDesign::Pad", "Pad004")
pad5.Profile = sketch8
pad5.Length = 15

sketch9 = body.newObject("Sketcher::SketchObject", "Sketch008")
sketch9.AttachmentSupport = (doc.getObject("XY_Plane"), [""])
sketch9.MapMode = "FlatFace"
sketch9.AttachmentOffset = App.Placement(V(0, 0, 14.25), App.Rotation())
sketch9.addGeometry([
    Part.LineSegment(V(-23, 3, 0), V(-23, -12, 0)),
    Part.LineSegment(V(-23, -12, 0), V(23, -12, 0)),
    Part.LineSegment(V(23, -12, 0), V(23, 3, 0)),
    Part.LineSegment(V(23, 3, 0), V(-23, 3, 0)),
], False)
sketch9.addConstraint([
    Sketcher.Constraint("Coincident", 0, 2, 1, 1),
    Sketcher.Constraint("Coincident", 1, 2, 2, 1),
    Sketcher.Constraint("Coincident", 2, 2, 3, 1),
    Sketcher.Constraint("Coincident", 3, 2, 0, 1),
    Sketcher.Constraint("Vertical", 0),
    Sketcher.Constraint("Horizontal", 1),
    Sketcher.Constraint("Vertical", 2),
    Sketcher.Constraint("Horizontal", 3),
    Sketcher.Constraint("DistanceX", 1, 1, 1, 2, Q("46 mm")),
    Sketcher.Constraint("DistanceY", 0, 2, 0, 1, Q("15 mm")),
    Sketcher.Constraint("DistanceX", 0, 2, -1, 1, Q("23 mm")),
    Sketcher.Constraint("DistanceY", 0, 2, -1, 1, Q("12 mm")),
])
pocket4 = body.newObject("PartDesign::Pocket", "Pocket003")
pocket4.Profile = sketch9
pocket4.Type = "ThroughAll"

doc.recompute()
